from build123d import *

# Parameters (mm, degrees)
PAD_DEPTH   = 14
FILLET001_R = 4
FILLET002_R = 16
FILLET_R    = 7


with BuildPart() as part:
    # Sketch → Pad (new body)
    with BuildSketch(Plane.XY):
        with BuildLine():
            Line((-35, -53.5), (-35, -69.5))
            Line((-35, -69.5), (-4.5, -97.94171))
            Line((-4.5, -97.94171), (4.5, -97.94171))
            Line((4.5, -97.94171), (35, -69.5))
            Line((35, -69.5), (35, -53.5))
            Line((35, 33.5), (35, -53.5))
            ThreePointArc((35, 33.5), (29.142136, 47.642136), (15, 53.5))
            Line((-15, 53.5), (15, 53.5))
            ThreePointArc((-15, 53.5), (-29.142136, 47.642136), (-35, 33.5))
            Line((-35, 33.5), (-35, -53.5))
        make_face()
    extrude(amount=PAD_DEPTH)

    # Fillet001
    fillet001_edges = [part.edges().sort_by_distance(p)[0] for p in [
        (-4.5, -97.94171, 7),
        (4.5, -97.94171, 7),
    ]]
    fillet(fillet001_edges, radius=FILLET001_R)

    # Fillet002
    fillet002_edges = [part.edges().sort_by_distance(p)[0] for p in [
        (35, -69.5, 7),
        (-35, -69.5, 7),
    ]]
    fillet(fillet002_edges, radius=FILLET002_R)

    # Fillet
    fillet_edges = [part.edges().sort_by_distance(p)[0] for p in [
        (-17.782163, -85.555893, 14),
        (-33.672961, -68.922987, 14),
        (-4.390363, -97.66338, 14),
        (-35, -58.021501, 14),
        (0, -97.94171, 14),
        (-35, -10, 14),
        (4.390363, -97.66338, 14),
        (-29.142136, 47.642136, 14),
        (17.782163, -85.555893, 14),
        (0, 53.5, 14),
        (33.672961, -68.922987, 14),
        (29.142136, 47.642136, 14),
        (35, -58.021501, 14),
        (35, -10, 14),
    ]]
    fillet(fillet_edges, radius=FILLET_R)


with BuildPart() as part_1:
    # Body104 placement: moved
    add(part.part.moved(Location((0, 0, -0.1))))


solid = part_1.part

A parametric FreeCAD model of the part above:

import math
import FreeCAD as App
import Part
import Sketcher
Q = App.Units.Quantity


def edges_at(feature, points):
    """Names of the edges that pass closest to the given points."""
    edges = feature.Shape.Edges
    near = lambda p: min(range(len(edges)), key=lambda i: edges[i].distToShape(Part.Vertex(*p))[0])
    return sorted({f"Edge{near(p) + 1}" for p in points})

doc = App.newDocument("Part")
params = doc.addObject("Spreadsheet::Sheet", "Params")
for row, (alias, value) in enumerate([
    ("sketch1_radius", "19.999999 mm"),
    ("sketch1_width", "9 mm"),
    ("sketch1_width2", "30 mm"),
    ("sketch1_height", "103 mm"),
    ("pad1_length", "14 mm"),
    ("fillet_radius", "4 mm"),
    ("fillet2_radius", "16 mm"),
    ("fillet3_radius", "7 mm"),
], start=1):
    params.set(f"A{row}", alias)
    params.set(f"B{row}", "=" + value)
    params.setAlias(f"B{row}", alias)

body = doc.addObject("PartDesign::Body", "Body")

sketch1 = body.newObject("Sketcher::SketchObject", "Sketch")
sketch1.AttachmentSupport = (doc.getObject("XY_Plane"), [""])
sketch1.MapMode = "FlatFace"
sketch1.addGeometry(Part.LineSegment(App.Vector(-35, -70, 0), App.Vector(-4, -98, 0)), False)
sketch1.addGeometry(Part.LineSegment(App.Vector(-4, -98, 0), App.Vector(4, -98, 0)), False)
sketch1.addGeometry(Part.LineSegment(App.Vector(4, -98, 0), App.Vector(35, -70, 0)), False)
sketch1.addGeometry(Part.LineSegment(App.Vector(35, -70, 0), App.Vector(35, 34, 0)), False)
sketch1.addGeometry(Part.ArcOfCircle(Part.Circle(App.Vector(15, 34, 0), App.Vector(0, 0, 1), 20), math.radians(0), math.radians(90)), False)
sketch1.addGeometry(Part.LineSegment(App.Vector(15, 54, 0), App.Vector(-15, 54, 0)), False)
sketch1.addGeometry(Part.ArcOfCircle(Part.Circle(App.Vector(-15, 34, 0), App.Vector(0, 0, 1), 20), math.radians(90), math.radians(180)), False)
sketch1.addGeometry(Part.LineSegment(App.Vector(-35, 34, 0), App.Vector(-35, -70, 0)), False)
sketch1.addConstraint(Sketcher.Constraint("Coincident", 0, 2, 1, 1))
sketch1.addConstraint(Sketcher.Constraint("Coincident", 1, 2, 2, 1))
sketch1.addConstraint(Sketcher.Constraint("Coincident", 2, 2, 3, 1))
sketch1.addConstraint(Sketcher.Constraint("Tangent", 3, 2, 4, 1))
sketch1.addConstraint(Sketcher.Constraint("Tangent", 4, 2, 5, 1))
sketch1.addConstraint(Sketcher.Constraint("Tangent", 5, 2, 6, 1))
sketch1.addConstraint(Sketcher.Constraint("Tangent", 6, 2, 7, 1))
sketch1.addConstraint(Sketcher.Constraint("Coincident", 7, 2, 0, 1))
sketch1.addConstraint(Sketcher.Constraint("Horizontal", 1))
sketch1.addConstraint(Sketcher.Constraint("Vertical", 3))
sketch1.addConstraint(Sketcher.Constraint("Horizontal", 5))
sketch1.addConstraint(Sketcher.Constraint("Vertical", 7))
sketch1.addConstraint(Sketcher.Constraint("Equal", 4, 6))
sketch1.addConstraint(Sketcher.Constraint("Symmetric", 2, 2, 7, 2, -2))
sketch1.addConstraint(Sketcher.Constraint("Equal", 0, 2))
sketch1.addConstraint(Sketcher.Constraint("Radius", 4, Q("19.999999 mm")))
sketch1.addConstraint(Sketcher.Constraint("DistanceX", 1, 1, 1, 2, Q("9 mm")))
sketch1.addConstraint(Sketcher.Constraint("DistanceX", 5, 2, 5, 1, Q("30 mm")))
sketch1.addConstraint(Sketcher.Constraint("DistanceY", 3, 1, 3, 2, Q("103 mm")))
sketch1.addConstraint(Sketcher.Constraint("Angle", 0, Q("-43 deg")))
sketch1.addConstraint(Sketcher.Constraint("DistanceY", -1, 1, 4, 3, Q("33.500001 mm")))
sketch1.setExpression("Constraints[15]", "Params.sketch1_radius")
sketch1.setExpression("Constraints[16]", "Params.sketch1_width")
sketch1.setExpression("Constraints[17]", "Params.sketch1_width2")
sketch1.setExpression("Constraints[18]", "Params.sketch1_height")
pad1 = body.newObject("PartDesign::Pad", "Pad")
pad1.Profile = sketch1
pad1.setExpression("Length", "Params.pad1_length")
doc.recompute()

fillet = body.newObject("PartDesign::Fillet", "Fillet")
fillet.Base = (pad1, edges_at(pad1, [(-4.5, -97.942, 7), (4.5, -97.942, 7)]))
fillet.setExpression("Radius", "Params.fillet_radius")
doc.recompute()

fillet2 = body.newObject("PartDesign::Fillet", "Fillet001")
fillet2.Base = (fillet, edges_at(fillet, [(35, -69.5, 7), (-35, -69.5, 7)]))
fillet2.setExpression("Radius", "Params.fillet2_radius")
doc.recompute()

fillet3 = body.newObject("PartDesign::Fillet", "Fillet002")
fillet3.Base = (fillet2, edges_at(fillet2, [
    (-17.782, -85.556, 14),
    (-33.673, -68.923, 14),
    (-4.39, -97.663, 14),
    (-35, -14.522, 14),
    (0, -97.942, 14),
    (-35, -14.522, 14),
    (4.39, -97.663, 14),
    (-29.142, 47.642, 14),
    (17.782, -85.556, 14),
    (0, 53.5, 14),
    (33.673, -68.923, 14),
    (29.142, 47.642, 14),
    (35, -14.522, 14),
    (35, -14.522, 14),
]))
fillet3.setExpression("Radius", "Params.fillet3_radius")
body2 = doc.addObject("PartDesign::Body", "Body001")
doc.recompute()

body.Placement = App.Placement(App.Vector(0, 0, -0.1), App.Rotation(App.Vector(0, 0, 1), 0))
boolean = body2.newObject("PartDesign::Boolean", "Boolean")
boolean.Type = "Fuse"
boolean.addObjects([body])

doc.recompute()
